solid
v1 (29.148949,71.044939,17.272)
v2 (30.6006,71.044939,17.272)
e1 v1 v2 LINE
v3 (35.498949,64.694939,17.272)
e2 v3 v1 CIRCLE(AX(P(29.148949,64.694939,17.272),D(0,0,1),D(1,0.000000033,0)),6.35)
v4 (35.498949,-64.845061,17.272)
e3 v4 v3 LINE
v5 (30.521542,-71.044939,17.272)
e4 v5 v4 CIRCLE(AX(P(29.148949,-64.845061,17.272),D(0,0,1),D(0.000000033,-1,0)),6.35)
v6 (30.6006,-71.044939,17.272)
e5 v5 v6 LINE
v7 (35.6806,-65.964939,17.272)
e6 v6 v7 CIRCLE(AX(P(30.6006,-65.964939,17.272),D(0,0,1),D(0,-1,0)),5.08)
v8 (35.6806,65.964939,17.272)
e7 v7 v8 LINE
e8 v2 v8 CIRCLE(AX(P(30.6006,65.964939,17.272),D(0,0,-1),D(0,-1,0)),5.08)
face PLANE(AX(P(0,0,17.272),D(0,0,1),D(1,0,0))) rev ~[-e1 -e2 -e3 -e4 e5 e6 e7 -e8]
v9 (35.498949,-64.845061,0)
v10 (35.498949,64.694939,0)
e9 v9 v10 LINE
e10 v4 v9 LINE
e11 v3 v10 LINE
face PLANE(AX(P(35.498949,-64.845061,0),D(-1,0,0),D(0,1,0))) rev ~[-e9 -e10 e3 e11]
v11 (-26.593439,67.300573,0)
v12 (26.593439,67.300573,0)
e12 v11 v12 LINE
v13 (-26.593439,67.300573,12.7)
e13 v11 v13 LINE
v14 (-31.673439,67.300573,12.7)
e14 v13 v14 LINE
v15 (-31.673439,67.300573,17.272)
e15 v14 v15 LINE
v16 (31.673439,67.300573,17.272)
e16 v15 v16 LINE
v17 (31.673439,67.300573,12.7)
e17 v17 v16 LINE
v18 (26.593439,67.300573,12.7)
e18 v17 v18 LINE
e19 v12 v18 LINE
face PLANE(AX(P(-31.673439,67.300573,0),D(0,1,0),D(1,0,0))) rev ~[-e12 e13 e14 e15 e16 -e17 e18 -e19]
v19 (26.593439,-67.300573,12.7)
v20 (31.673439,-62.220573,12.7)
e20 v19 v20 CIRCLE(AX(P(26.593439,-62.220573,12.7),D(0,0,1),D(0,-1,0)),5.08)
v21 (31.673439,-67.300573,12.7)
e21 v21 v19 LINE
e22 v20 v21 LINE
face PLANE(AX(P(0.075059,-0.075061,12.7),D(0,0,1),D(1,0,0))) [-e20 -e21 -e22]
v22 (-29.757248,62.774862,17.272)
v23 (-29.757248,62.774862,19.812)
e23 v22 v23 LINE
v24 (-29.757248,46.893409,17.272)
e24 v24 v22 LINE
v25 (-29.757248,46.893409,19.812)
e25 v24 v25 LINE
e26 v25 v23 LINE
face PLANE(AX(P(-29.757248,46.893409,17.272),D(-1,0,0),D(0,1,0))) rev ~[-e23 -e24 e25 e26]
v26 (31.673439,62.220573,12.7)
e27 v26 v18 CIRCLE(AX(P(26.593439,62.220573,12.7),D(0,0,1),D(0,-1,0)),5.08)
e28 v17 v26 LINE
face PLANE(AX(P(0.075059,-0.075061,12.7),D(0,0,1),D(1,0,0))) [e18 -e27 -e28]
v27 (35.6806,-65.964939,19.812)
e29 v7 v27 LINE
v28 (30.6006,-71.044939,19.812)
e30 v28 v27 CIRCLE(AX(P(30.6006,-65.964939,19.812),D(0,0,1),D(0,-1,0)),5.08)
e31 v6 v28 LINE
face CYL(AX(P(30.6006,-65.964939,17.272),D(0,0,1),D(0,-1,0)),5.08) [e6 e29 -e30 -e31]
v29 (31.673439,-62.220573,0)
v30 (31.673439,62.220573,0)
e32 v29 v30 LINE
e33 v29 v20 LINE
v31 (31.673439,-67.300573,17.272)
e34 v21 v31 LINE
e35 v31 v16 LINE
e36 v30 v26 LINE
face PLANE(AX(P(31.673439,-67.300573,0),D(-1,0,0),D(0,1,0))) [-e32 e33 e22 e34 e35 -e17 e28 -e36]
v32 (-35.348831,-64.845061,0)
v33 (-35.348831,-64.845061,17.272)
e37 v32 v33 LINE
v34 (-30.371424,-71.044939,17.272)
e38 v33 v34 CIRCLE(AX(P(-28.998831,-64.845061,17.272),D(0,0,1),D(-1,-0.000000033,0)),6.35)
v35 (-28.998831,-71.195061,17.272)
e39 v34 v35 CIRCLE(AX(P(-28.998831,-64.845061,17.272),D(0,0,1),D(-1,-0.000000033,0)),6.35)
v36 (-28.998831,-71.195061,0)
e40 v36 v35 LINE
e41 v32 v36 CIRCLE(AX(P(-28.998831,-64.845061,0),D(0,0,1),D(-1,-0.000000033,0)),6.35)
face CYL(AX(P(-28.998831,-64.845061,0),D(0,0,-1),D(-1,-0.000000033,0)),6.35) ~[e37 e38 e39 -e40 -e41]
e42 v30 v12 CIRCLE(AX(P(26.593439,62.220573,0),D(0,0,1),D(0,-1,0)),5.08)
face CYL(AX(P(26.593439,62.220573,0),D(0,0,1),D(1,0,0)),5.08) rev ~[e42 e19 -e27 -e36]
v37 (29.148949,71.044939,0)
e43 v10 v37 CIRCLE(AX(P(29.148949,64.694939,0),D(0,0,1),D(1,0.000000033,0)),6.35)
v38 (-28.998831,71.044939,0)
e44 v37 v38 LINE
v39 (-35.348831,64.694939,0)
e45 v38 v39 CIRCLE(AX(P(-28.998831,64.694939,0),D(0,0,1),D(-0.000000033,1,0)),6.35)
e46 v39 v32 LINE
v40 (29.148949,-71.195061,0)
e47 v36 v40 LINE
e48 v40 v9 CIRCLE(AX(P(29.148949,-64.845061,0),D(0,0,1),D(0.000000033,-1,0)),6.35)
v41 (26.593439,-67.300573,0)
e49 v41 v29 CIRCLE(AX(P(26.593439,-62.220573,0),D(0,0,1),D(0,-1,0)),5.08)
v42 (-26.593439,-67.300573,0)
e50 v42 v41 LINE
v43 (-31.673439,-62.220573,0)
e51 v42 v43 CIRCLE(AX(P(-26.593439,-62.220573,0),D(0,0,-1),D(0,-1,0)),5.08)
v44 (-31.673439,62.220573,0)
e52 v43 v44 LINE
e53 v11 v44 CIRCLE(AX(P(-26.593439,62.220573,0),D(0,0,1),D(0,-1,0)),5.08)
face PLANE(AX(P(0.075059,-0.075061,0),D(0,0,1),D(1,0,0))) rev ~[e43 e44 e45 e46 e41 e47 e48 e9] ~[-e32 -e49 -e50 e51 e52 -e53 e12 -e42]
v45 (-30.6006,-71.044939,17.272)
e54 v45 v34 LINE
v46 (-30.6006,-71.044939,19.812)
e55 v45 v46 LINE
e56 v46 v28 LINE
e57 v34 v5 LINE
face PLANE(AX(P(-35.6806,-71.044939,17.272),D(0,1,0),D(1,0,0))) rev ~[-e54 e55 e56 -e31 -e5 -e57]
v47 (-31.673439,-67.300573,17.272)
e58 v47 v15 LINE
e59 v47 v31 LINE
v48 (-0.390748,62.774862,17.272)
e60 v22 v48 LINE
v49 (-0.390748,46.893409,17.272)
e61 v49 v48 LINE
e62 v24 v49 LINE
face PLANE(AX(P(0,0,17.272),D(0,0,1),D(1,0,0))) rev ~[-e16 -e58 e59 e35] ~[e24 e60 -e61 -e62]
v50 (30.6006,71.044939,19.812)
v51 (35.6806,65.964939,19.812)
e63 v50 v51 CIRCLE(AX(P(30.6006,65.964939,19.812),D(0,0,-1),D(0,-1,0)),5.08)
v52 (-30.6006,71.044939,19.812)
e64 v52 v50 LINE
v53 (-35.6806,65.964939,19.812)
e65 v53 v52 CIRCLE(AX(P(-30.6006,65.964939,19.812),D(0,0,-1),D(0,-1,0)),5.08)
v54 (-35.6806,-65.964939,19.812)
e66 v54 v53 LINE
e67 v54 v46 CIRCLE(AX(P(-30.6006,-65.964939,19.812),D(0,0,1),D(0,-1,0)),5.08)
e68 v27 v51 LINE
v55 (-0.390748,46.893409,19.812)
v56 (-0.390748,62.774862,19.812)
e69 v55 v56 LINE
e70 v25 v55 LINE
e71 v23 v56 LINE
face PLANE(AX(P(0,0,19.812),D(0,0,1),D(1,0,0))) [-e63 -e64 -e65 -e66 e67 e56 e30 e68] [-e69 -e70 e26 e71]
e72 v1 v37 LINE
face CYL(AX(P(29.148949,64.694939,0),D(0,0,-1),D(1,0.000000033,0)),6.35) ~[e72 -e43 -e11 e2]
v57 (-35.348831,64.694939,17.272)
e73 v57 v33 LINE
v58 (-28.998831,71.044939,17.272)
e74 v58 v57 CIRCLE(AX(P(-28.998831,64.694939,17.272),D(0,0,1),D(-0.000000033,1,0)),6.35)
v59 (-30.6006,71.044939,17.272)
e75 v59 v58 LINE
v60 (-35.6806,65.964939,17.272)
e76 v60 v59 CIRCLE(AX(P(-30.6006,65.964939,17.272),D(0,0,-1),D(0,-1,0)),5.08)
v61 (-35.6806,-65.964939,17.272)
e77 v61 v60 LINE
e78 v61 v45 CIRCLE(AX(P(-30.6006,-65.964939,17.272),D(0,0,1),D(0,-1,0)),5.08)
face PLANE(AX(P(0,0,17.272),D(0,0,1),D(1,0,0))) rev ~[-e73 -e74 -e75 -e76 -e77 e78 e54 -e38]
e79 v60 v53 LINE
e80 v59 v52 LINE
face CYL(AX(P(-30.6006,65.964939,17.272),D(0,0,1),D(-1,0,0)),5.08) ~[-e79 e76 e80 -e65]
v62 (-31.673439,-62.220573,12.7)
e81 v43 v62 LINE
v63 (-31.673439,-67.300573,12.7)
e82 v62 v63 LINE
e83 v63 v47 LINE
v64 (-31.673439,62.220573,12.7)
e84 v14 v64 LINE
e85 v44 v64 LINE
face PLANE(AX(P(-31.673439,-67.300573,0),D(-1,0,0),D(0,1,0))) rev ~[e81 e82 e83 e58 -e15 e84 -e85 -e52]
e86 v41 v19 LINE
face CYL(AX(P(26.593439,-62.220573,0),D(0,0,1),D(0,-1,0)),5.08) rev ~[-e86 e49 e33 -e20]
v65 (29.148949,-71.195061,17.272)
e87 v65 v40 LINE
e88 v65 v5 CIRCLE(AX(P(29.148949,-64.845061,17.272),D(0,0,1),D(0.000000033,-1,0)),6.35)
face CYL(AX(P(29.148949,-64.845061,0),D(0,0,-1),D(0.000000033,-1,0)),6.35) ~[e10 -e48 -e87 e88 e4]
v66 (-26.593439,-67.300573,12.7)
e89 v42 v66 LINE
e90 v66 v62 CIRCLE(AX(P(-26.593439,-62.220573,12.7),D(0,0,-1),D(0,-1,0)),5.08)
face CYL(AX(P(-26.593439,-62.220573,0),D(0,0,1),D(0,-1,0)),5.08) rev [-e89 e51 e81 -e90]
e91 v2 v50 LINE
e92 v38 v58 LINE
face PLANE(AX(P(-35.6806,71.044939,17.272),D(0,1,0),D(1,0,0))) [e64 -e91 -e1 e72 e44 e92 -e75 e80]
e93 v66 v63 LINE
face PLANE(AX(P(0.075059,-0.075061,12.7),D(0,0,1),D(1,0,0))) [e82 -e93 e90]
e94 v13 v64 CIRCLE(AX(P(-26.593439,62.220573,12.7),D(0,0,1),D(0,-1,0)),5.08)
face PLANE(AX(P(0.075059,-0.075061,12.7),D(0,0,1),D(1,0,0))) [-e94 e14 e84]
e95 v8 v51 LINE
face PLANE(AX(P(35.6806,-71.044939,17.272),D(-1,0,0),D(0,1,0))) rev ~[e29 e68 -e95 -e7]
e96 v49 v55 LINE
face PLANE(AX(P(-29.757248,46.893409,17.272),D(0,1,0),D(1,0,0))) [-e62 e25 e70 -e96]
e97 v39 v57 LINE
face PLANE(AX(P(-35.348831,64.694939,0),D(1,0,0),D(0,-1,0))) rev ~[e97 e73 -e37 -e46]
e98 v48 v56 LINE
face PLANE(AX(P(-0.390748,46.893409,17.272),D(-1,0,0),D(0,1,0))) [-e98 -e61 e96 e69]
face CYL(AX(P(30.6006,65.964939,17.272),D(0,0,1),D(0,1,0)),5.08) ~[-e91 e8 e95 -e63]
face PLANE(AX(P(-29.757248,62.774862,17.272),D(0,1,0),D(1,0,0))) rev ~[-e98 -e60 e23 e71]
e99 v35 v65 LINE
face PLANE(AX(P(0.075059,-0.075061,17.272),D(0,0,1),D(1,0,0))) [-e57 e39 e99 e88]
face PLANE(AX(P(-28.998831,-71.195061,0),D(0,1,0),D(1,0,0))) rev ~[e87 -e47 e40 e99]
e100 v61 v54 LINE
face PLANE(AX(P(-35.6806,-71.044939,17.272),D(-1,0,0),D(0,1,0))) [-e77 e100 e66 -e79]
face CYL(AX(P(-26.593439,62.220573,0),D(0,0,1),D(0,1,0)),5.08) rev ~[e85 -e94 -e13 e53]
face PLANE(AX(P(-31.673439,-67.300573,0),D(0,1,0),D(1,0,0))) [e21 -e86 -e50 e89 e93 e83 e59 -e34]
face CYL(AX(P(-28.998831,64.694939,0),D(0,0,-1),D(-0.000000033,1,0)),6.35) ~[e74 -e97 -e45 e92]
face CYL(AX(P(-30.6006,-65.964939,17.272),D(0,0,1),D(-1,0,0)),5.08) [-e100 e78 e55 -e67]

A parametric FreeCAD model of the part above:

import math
import FreeCAD as App
import Part
import Sketcher

V = App.Vector
Q = App.Units.Quantity


def edges_at(feature, points):
    """Names of the edges that pass closest to the given points."""
    edges = feature.Shape.Edges
    near = lambda p: min(range(len(edges)), key=lambda i: edges[i].distToShape(Part.Vertex(*p))[0])
    return sorted({f"Edge{near(p) + 1}" for p in points})

doc = App.newDocument("Part")
body = doc.addObject("PartDesign::Body", "Body")

# Sketch on XY plane
sketch1 = body.newObject("Sketcher::SketchObject", "Sketch")
sketch1.AttachmentSupport = (doc.getObject("XY_Plane"), [""])
sketch1.MapMode = "FlatFace"
sketch1.addGeometry([
    Part.LineSegment(V(29.148949, 71.044939, 0), V(-28.998831, 71.044939, 0)),  # 0
    Part.ArcOfCircle(Part.Circle(V(-28.998831, 64.694939, 0), V(0, 0, 1), 6.35), math.radians(90.000002), math.radians(179.999998)),  # 1
    Part.LineSegment(V(-35.348831, 64.694939, 0), V(-35.348831, -64.845061, 0)),  # 2
    Part.ArcOfCircle(Part.Circle(V(-28.998831, -64.845061, 0), V(0, 0, 1), 6.35), math.radians(-179.999998), math.radians(-90.000002)),  # 3
    Part.LineSegment(V(-28.998831, -71.195061, 0), V(29.148949, -71.195061, 0)),  # 4
    Part.ArcOfCircle(Part.Circle(V(29.148949, -64.845061, 0), V(0, 0, 1), 6.35), math.radians(-89.999998), math.radians(-0.000002)),  # 5
    Part.LineSegment(V(35.498949, -64.845061, 0), V(35.498949, 64.694939, 0)),  # 6
    Part.ArcOfCircle(Part.Circle(V(29.148949, 64.694939, 0), V(0, 0, 1), 6.35), math.radians(0.000002), math.radians(89.999998)),  # 7
    Part.LineSegment(V(31.673439, -67.300573, 0), V(-31.673439, -67.300573, 0)),  # 8
    Part.LineSegment(V(-31.673439, -67.300573, 0), V(-31.673439, 67.300573, 0)),  # 9
    Part.LineSegment(V(-31.673439, 67.300573, 0), V(31.673439, 67.300573, 0)),  # 10
    Part.LineSegment(V(31.673439, 67.300573, 0), V(31.673439, -67.300573, 0)),  # 11
], False)
sketch1.addConstraint([
    Sketcher.Constraint("Tangent", 0, 2, 1, 1),
    Sketcher.Constraint("Tangent", 1, 2, 2, 1),
    Sketcher.Constraint("Tangent", 2, 2, 3, 1),
    Sketcher.Constraint("Tangent", 3, 2, 4, 1),
    Sketcher.Constraint("Tangent", 4, 2, 5, 1),
    Sketcher.Constraint("Tangent", 5, 2, 6, 1),
    Sketcher.Constraint("Tangent", 6, 2, 7, 1),
    Sketcher.Constraint("Tangent", 7, 2, 0, 1),
    Sketcher.Constraint("Coincident", 8, 2, 9, 1),
    Sketcher.Constraint("Coincident", 9, 2, 10, 1),
    Sketcher.Constraint("Coincident", 10, 2, 11, 1),
    Sketcher.Constraint("Coincident", 11, 2, 8, 1),
    Sketcher.Constraint("Horizontal", 0),
    Sketcher.Constraint("Vertical", 2),
    Sketcher.Constraint("Horizontal", 4),
    Sketcher.Constraint("Vertical", 6),
    Sketcher.Constraint("Horizontal", 8),
    Sketcher.Constraint("Vertical", 9),
    Sketcher.Constraint("Horizontal", 10),
    Sketcher.Constraint("Vertical", 11),
    Sketcher.Constraint("Equal", 1, 3),
    Sketcher.Constraint("Equal", 3, 5),
    Sketcher.Constraint("Equal", 5, 7),
    Sketcher.Constraint("Symmetric", 8, 2, 10, 2, -1, 1),
    Sketcher.Constraint("Radius", 1, Q("0.25 in")),
    Sketcher.Constraint("DistanceY", 2, 2, 2, 1, Q("5.1 in")),
    Sketcher.Constraint("DistanceX", 0, 2, 0, 1, Q("58.14778 mm")),
    Sketcher.Constraint("DistanceX", 8, 2, 8, 1, Q("63.346878 mm")),
    Sketcher.Constraint("DistanceY", 9, 1, 9, 2, Q("134.601146 mm")),
    Sketcher.Constraint("DistanceX", 1, 3, -1, 1, Q("28.998831 mm")),
    Sketcher.Constraint("DistanceY", -1, 1, 1, 3, Q("64.694939 mm")),
])
pad1 = body.newObject("PartDesign::Pad", "Pad")
pad1.Profile = sketch1
pad1.Length = Q("0.5 in")
doc.recompute()

fillet = body.newObject("PartDesign::Fillet", "Fillet")
fillet.Base = (pad1, edges_at(pad1, [
    (-31.673, 67.301, 6.35),
    (31.673, 67.301, 6.35),
    (31.673, -67.301, 6.35),
    (-31.673, -67.301, 6.35),
]))
fillet.Radius = Q("0.2 in")

# Sketch on XY plane
sketch2 = body.newObject("Sketcher::SketchObject", "Sketch001")
sketch2.AttachmentSupport = (doc.getObject("XY_Plane"), [""])
sketch2.MapMode = "FlatFace"
sketch2.addGeometry([
    Part.LineSegment(V(29.148949, 71.044939, 0), V(-28.998831, 71.044939, 0)),  # 0
    Part.ArcOfCircle(Part.Circle(V(-28.998831, 64.694939, 0), V(0, 0, 1), 6.35), math.radians(90.000002), math.radians(179.999998)),  # 1
    Part.LineSegment(V(-35.348831, 64.694939, 0), V(-35.348831, -64.845061, 0)),  # 2
    Part.ArcOfCircle(Part.Circle(V(-28.998831, -64.845061, 0), V(0, 0, 1), 6.35), math.radians(-179.999998), math.radians(-90.000002)),  # 3
    Part.LineSegment(V(-28.998831, -71.195061, 0), V(29.148949, -71.195061, 0)),  # 4
    Part.ArcOfCircle(Part.Circle(V(29.148949, -64.845061, 0), V(0, 0, 1), 6.35), math.radians(-89.999998), math.radians(-0.000002)),  # 5
    Part.LineSegment(V(35.498949, -64.845061, 0), V(35.498949, 64.694939, 0)),  # 6
    Part.ArcOfCircle(Part.Circle(V(29.148949, 64.694939, 0), V(0, 0, 1), 6.35), math.radians(0.000002), math.radians(89.999998)),  # 7
    Part.LineSegment(V(31.673439, -67.300573, 0), V(-31.673439, -67.300573, 0)),  # 8
    Part.LineSegment(V(-31.673439, -67.300573, 0), V(-31.673439, 67.300573, 0)),  # 9
    Part.LineSegment(V(-31.673439, 67.300573, 0), V(31.673439, 67.300573, 0)),  # 10
    Part.LineSegment(V(31.673439, 67.300573, 0), V(31.673439, -67.300573, 0)),  # 11
], False)
sketch2.addConstraint([
    Sketcher.Constraint("Tangent", 0, 2, 1, 1),
    Sketcher.Constraint("Tangent", 1, 2, 2, 1),
    Sketcher.Constraint("Tangent", 2, 2, 3, 1),
    Sketcher.Constraint("Tangent", 3, 2, 4, 1),
    Sketcher.Constraint("Tangent", 4, 2, 5, 1),
    Sketcher.Constraint("Tangent", 5, 2, 6, 1),
    Sketcher.Constraint("Tangent", 6, 2, 7, 1),
    Sketcher.Constraint("Tangent", 7, 2, 0, 1),
    Sketcher.Constraint("Coincident", 8, 2, 9, 1),
    Sketcher.Constraint("Coincident", 9, 2, 10, 1),
    Sketcher.Constraint("Coincident", 10, 2, 11, 1),
    Sketcher.Constraint("Coincident", 11, 2, 8, 1),
    Sketcher.Constraint("Horizontal", 0),
    Sketcher.Constraint("Vertical", 2),
    Sketcher.Constraint("Horizontal", 4),
    Sketcher.Constraint("Vertical", 6),
    Sketcher.Constraint("Horizontal", 8),
    Sketcher.Constraint("Vertical", 9),
    Sketcher.Constraint("Horizontal", 10),
    Sketcher.Constraint("Vertical", 11),
    Sketcher.Constraint("Equal", 1, 3),
    Sketcher.Constraint("Equal", 3, 5),
    Sketcher.Constraint("Equal", 5, 7),
    Sketcher.Constraint("Symmetric", 8, 2, 10, 2, -1, 1),
    Sketcher.Constraint("Radius", 1, Q("0.25 in")),
    Sketcher.Constraint("DistanceY", 2, 2, 2, 1, Q("5.1 in")),
    Sketcher.Constraint("DistanceX", 0, 2, 0, 1, Q("58.14778 mm")),
    Sketcher.Constraint("DistanceX", 8, 2, 8, 1, Q("63.346878 mm")),
    Sketcher.Constraint("DistanceY", 9, 1, 9, 2, Q("134.601146 mm")),
    Sketcher.Constraint("DistanceX", 1, 3, -1, 1, Q("28.998831 mm")),
    Sketcher.Constraint("DistanceY", -1, 1, 1, 3, Q("64.694939 mm")),
])
pad2 = body.newObject("PartDesign::Pad", "Pad001")
pad2.Profile = sketch2
pad2.Length = Q("0.68 in")

# Sketch on XY plane
sketch3 = body.newObject("Sketcher::SketchObject", "Sketch002")
sketch3.AttachmentSupport = (doc.getObject("XY_Plane"), [""])
sketch3.MapMode = "FlatFace"
sketch3.AttachmentOffset = App.Placement(V(0, 0, 0.68 * 25.4), App.Rotation())
sketch3.addGeometry([
    Part.LineSegment(V(-35.6806, 71.044939, 0), V(-35.6806, -71.044939, 0)),  # 0
    Part.LineSegment(V(-35.6806, -71.044939, 0), V(35.6806, -71.044939, 0)),  # 1
    Part.LineSegment(V(35.6806, -71.044939, 0), V(35.6806, 71.044939, 0)),  # 2
    Part.LineSegment(V(35.6806, 71.044939, 0), V(-35.6806, 71.044939, 0)),  # 3
    Part.LineSegment(V(-0.390748, 46.893409, 0), V(-29.757248, 46.893409, 0)),  # 4
    Part.LineSegment(V(-29.757248, 46.893409, 0), V(-29.757248, 62.774862, 0)),  # 5
    Part.LineSegment(V(-29.757248, 62.774862, 0), V(-0.390748, 62.774862, 0)),  # 6
    Part.LineSegment(V(-0.390748, 62.774862, 0), V(-0.390748, 46.893409, 0)),  # 7
], False)
sketch3.addConstraint([
    Sketcher.Constraint("Coincident", 0, 2, 1, 1),
    Sketcher.Constraint("Coincident", 1, 2, 2, 1),
    Sketcher.Constraint("Coincident", 2, 2, 3, 1),
    Sketcher.Constraint("Coincident", 3, 2, 0, 1),
    Sketcher.Constraint("Coincident", 4, 2, 5, 1),
    Sketcher.Constraint("Coincident", 5, 2, 6, 1),
    Sketcher.Constraint("Coincident", 6, 2, 7, 1),
    Sketcher.Constraint("Coincident", 7, 2, 4, 1),
    Sketcher.Constraint("Vertical", 0),
    Sketcher.Constraint("Horizontal", 1),
    Sketcher.Constraint("Vertical", 2),
    Sketcher.Constraint("Horizontal", 3),
    Sketcher.Constraint("Horizontal", 4),
    Sketcher.Constraint("Vertical", 5),
    Sketcher.Constraint("Horizontal", 6),
    Sketcher.Constraint("Vertical", 7),
    Sketcher.Constraint("Symmetric", 0, 2, 2, 2, -1, 1),
    Sketcher.Constraint("DistanceX", 1, 1, 1, 2, Q("71.3612 mm")),
    Sketcher.Constraint("DistanceX", 4, 2, 4, 1, Q("29.3665 mm")),
    Sketcher.Constraint("DistanceY", 0, 2, 0, 1, Q("142.089878 mm")),
    Sketcher.Constraint("DistanceY", 0, 2, 5, 2, Q("133.819801 mm")),
    Sketcher.Constraint("DistanceY", 5, 1, 5, 2, Q("15.881453 mm")),
    Sketcher.Constraint("DistanceX", 4, 2, -1, 1, Q("29.757248 mm")),
])
pad3 = body.newObject("PartDesign::Pad", "Pad002")
pad3.Profile = sketch3
pad3.Length = Q("0.1 in")
doc.recompute()

fillet2 = body.newObject("PartDesign::Fillet", "Fillet001")
fillet2.Base = (pad3, edges_at(pad3, [
    (-35.681, 71.045, 18.542),
    (35.681, 71.045, 18.542),
    (35.681, -71.045, 18.542),
    (-35.681, -71.045, 18.542),
]))
fillet2.Radius = Q("0.2 in")

doc.recompute()
